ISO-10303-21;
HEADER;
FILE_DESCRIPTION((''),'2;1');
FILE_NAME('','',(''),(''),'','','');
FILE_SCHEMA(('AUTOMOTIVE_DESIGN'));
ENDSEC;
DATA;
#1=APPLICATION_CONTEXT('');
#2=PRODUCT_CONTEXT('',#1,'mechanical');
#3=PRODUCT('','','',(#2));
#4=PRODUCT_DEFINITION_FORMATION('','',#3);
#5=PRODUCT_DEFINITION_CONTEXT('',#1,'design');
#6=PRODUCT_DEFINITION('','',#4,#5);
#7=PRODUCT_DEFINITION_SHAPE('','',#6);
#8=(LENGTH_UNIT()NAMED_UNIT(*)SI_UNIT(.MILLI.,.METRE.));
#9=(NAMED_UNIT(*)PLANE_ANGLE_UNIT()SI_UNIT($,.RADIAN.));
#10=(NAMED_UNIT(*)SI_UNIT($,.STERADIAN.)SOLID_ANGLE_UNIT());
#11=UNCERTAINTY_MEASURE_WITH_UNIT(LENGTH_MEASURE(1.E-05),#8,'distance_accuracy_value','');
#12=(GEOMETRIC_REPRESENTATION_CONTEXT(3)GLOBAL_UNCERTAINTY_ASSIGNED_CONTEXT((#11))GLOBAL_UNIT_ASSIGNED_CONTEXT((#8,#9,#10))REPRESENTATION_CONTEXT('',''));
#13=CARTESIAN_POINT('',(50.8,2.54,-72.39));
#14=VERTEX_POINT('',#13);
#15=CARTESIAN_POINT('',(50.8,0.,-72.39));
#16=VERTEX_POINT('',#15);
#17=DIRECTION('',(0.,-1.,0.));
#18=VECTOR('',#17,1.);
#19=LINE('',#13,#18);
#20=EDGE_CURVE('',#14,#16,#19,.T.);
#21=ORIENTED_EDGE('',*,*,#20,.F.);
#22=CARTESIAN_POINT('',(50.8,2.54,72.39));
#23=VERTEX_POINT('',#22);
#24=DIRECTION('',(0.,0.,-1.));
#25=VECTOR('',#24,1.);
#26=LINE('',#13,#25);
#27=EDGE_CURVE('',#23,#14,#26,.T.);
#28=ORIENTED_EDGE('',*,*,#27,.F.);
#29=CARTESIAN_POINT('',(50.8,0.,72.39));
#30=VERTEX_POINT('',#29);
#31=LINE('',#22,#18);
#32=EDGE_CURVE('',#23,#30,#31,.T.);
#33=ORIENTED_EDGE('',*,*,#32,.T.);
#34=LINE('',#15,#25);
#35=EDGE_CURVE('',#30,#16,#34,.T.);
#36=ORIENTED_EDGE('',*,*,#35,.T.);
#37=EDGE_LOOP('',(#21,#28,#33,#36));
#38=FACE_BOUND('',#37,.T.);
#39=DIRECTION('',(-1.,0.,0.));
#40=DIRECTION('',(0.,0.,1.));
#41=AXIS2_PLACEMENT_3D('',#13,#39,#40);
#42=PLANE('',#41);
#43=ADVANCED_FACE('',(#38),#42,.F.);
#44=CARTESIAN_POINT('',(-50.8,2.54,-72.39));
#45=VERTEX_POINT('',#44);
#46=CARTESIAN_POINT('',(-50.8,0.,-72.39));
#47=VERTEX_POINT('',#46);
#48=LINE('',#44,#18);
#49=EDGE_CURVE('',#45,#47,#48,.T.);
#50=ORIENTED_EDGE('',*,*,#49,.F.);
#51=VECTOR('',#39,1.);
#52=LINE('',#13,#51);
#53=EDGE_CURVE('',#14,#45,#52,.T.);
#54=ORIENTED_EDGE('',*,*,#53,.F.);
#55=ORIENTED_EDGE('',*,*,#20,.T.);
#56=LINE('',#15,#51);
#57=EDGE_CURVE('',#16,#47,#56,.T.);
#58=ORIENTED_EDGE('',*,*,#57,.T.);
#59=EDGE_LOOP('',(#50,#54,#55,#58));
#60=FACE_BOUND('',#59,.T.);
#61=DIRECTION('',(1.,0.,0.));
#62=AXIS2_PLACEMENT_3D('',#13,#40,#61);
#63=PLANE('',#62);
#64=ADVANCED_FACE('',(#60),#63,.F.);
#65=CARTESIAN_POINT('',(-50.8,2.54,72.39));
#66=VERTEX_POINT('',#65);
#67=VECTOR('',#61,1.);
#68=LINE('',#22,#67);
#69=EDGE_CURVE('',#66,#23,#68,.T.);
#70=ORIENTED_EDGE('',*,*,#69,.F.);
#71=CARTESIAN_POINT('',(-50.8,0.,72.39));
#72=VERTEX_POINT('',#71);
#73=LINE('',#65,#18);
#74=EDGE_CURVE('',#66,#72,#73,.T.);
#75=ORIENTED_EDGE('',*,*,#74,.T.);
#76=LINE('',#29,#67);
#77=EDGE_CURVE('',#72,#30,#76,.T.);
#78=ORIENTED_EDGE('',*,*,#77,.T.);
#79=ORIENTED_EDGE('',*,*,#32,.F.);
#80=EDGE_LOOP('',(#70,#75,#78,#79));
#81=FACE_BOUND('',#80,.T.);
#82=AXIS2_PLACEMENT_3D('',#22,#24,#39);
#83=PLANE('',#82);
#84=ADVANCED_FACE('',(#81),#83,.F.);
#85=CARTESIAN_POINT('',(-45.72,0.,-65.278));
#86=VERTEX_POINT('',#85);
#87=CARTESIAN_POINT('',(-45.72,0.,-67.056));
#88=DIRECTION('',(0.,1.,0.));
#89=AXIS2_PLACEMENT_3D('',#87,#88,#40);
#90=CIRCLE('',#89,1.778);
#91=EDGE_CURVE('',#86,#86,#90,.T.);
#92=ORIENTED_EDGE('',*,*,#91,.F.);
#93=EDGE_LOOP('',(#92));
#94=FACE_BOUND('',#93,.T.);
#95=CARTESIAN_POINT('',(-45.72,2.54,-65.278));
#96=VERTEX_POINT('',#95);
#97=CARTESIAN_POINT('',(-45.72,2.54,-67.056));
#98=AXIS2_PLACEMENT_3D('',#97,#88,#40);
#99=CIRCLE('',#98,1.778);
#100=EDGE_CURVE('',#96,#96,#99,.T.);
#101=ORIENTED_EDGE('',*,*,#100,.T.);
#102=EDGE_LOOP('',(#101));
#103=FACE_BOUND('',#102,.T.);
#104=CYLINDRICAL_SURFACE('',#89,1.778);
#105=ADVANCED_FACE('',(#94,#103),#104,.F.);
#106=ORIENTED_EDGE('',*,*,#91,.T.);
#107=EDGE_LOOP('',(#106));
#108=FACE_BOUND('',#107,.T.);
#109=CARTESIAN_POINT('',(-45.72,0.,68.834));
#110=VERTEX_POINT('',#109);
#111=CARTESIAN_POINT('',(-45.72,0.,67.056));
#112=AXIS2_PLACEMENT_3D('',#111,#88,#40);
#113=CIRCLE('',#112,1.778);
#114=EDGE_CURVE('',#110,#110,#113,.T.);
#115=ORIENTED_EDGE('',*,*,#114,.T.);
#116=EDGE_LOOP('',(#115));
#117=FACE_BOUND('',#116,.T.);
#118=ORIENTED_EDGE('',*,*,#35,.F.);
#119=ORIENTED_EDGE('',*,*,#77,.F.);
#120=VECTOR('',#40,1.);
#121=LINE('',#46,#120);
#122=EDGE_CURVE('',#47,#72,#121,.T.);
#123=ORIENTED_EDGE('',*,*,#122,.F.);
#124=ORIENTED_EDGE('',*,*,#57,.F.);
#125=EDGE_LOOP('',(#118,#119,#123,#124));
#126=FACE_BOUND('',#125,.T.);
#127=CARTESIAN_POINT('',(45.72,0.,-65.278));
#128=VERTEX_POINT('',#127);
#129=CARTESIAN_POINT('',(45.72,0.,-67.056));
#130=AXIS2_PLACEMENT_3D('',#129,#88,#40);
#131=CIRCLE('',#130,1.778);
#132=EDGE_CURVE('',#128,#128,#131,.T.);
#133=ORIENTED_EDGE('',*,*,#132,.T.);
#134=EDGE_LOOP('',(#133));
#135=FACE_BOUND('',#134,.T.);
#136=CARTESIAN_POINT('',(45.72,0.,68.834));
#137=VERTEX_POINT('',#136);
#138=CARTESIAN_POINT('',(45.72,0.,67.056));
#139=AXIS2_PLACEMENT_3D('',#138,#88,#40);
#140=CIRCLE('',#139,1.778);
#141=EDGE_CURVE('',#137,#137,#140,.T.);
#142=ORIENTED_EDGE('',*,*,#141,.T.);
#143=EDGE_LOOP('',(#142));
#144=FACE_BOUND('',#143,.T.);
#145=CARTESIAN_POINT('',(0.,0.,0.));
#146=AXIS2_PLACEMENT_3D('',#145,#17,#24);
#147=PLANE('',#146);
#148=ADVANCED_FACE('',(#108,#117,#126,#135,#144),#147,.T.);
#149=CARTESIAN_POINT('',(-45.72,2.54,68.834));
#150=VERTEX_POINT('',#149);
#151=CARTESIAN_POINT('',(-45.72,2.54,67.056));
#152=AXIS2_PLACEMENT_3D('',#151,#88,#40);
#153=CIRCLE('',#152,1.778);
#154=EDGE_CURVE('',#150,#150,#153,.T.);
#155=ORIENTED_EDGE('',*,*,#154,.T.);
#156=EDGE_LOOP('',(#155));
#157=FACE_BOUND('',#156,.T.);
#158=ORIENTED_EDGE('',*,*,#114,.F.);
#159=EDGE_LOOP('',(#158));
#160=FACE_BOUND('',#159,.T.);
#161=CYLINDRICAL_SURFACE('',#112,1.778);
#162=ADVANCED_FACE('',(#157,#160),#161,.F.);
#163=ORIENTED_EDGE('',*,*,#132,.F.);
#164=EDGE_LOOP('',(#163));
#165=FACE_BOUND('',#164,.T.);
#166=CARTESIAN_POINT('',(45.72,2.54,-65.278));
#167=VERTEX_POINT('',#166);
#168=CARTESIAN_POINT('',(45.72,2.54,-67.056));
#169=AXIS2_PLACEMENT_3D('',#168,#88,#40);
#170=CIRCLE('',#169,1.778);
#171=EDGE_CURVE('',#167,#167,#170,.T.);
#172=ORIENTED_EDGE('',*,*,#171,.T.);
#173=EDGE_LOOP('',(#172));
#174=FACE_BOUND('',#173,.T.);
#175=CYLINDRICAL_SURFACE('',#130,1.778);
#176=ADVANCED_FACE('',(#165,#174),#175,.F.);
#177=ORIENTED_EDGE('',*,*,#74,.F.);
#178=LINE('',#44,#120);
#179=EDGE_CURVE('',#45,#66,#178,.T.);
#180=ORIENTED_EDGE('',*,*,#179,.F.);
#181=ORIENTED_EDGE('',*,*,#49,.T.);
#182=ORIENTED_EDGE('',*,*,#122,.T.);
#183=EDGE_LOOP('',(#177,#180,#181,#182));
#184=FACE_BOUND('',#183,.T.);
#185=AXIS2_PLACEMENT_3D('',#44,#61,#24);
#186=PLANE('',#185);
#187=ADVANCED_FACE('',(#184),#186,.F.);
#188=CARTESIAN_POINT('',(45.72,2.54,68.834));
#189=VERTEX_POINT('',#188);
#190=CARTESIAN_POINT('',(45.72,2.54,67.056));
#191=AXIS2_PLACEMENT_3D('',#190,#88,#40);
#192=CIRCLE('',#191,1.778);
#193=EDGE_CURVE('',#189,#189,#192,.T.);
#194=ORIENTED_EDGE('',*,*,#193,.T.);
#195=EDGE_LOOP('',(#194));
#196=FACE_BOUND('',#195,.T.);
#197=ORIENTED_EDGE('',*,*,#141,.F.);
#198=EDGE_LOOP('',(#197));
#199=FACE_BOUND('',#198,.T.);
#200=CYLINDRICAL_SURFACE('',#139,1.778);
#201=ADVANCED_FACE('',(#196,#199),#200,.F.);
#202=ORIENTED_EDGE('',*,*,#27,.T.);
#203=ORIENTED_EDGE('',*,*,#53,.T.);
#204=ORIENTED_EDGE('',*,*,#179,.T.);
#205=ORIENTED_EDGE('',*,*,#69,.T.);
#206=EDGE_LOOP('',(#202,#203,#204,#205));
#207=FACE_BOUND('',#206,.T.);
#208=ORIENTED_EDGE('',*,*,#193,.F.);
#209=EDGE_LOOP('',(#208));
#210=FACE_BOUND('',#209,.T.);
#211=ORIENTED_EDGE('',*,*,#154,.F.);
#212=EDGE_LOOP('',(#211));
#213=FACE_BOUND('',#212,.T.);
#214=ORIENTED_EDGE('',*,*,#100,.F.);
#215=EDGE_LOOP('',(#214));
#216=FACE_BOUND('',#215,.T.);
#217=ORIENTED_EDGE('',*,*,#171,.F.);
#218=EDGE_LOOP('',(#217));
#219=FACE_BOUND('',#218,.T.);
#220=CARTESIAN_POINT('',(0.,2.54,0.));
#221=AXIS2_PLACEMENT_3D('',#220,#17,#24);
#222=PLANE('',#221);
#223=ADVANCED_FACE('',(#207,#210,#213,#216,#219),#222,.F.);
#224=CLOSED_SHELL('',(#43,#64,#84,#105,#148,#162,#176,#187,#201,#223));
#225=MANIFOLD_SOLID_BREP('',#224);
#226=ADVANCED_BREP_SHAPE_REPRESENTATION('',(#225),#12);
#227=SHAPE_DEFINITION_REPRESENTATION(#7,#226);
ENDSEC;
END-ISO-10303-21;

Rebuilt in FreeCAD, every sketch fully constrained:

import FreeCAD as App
import Part
import Sketcher
Q = App.Units.Quantity

doc = App.newDocument("Part")
body = doc.addObject("PartDesign::Body", "Body")

sketch1 = doc.addObject("Sketcher::SketchObject", "Sketch")
body.addObject(sketch1)
sketch1.AttachmentSupport = (doc.XZ_Plane, [""])
sketch1.MapMode = "FlatFace"
sketch1.addGeometry(Part.LineSegment(App.Vector(-51, -72, 0), App.Vector(-51, 72, 0)), False)
sketch1.addGeometry(Part.LineSegment(App.Vector(-51, 72, 0), App.Vector(51, 72, 0)), False)
sketch1.addGeometry(Part.LineSegment(App.Vector(51, 72, 0), App.Vector(51, -72, 0)), False)
sketch1.addGeometry(Part.LineSegment(App.Vector(51, -72, 0), App.Vector(-51, -72, 0)), False)
sketch1.addConstraint(Sketcher.Constraint("Coincident", 0, 2, 1, 1))
sketch1.addConstraint(Sketcher.Constraint("Coincident", 1, 2, 2, 1))
sketch1.addConstraint(Sketcher.Constraint("Coincident", 2, 2, 3, 1))
sketch1.addConstraint(Sketcher.Constraint("Coincident", 3, 2, 0, 1))
sketch1.addConstraint(Sketcher.Constraint("Vertical", 0))
sketch1.addConstraint(Sketcher.Constraint("Horizontal", 1))
sketch1.addConstraint(Sketcher.Constraint("Vertical", 2))
sketch1.addConstraint(Sketcher.Constraint("Horizontal", 3))
sketch1.addConstraint(Sketcher.Constraint("Symmetric", 0, 2, 2, 2, -1, 1))
sketch1.addConstraint(Sketcher.Constraint("DistanceX", 1, 1, 1, 2, Q("4 in")))
sketch1.addConstraint(Sketcher.Constraint("DistanceY", 0, 1, 0, 2, Q("5.7 in")))
pad1 = doc.addObject("PartDesign::Pad", "Pad")
body.addObject(pad1)
pad1.Profile = sketch1
pad1.Length = Q("0.1 in")
pad1.Reversed = True

sketch2 = doc.addObject("Sketcher::SketchObject", "Sketch001")
body.addObject(sketch2)
sketch2.AttachmentSupport = (doc.XZ_Plane, [""])
sketch2.MapMode = "FlatFace"
sketch2.AttachmentOffset = App.Placement(App.Vector(0, 0, -0.1 * 25.4), App.Rotation())
sketch2.addGeometry(Part.Circle(App.Vector(-45.7, -67.1, 0), App.Vector(0, 0, 1), 1.8), False)
sketch2.addGeometry(Part.Circle(App.Vector(-45.7, 67.1, 0), App.Vector(0, 0, 1), 1.8), False)
sketch2.addGeometry(Part.Circle(App.Vector(45.7, 67.1, 0), App.Vector(0, 0, 1), 1.8), False)
sketch2.addGeometry(Part.Circle(App.Vector(45.7, -67.1, 0), App.Vector(0, 0, 1), 1.8), False)
sketch2.addConstraint(Sketcher.Constraint("Equal", 0, 1))
sketch2.addConstraint(Sketcher.Constraint("Equal", 1, 2))
sketch2.addConstraint(Sketcher.Constraint("Equal", 2, 3))
sketch2.addConstraint(Sketcher.Constraint("Symmetric", 0, 3, 2, 3, -1, 1))
sketch2.addConstraint(Sketcher.Constraint("Symmetric", 1, 3, 3, 3, -1, 1))
sketch2.addConstraint(Sketcher.Constraint("Symmetric", 1, 3, 2, 3, -2))
sketch2.addConstraint(Sketcher.Constraint("Diameter", 0, Q("0.14 in")))
sketch2.addConstraint(Sketcher.Constraint("DistanceX", 0, 3, -1, 1, Q("1.8 in")))
sketch2.addConstraint(Sketcher.Constraint("DistanceY", 0, 3, -1, 1, Q("2.64 in")))
pocket1 = doc.addObject("PartDesign::Pocket", "Pocket")
body.addObject(pocket1)
pocket1.Profile = sketch2
pocket1.Length = Q("0.1 in")
pocket1.Reversed = True

doc.recompute()
